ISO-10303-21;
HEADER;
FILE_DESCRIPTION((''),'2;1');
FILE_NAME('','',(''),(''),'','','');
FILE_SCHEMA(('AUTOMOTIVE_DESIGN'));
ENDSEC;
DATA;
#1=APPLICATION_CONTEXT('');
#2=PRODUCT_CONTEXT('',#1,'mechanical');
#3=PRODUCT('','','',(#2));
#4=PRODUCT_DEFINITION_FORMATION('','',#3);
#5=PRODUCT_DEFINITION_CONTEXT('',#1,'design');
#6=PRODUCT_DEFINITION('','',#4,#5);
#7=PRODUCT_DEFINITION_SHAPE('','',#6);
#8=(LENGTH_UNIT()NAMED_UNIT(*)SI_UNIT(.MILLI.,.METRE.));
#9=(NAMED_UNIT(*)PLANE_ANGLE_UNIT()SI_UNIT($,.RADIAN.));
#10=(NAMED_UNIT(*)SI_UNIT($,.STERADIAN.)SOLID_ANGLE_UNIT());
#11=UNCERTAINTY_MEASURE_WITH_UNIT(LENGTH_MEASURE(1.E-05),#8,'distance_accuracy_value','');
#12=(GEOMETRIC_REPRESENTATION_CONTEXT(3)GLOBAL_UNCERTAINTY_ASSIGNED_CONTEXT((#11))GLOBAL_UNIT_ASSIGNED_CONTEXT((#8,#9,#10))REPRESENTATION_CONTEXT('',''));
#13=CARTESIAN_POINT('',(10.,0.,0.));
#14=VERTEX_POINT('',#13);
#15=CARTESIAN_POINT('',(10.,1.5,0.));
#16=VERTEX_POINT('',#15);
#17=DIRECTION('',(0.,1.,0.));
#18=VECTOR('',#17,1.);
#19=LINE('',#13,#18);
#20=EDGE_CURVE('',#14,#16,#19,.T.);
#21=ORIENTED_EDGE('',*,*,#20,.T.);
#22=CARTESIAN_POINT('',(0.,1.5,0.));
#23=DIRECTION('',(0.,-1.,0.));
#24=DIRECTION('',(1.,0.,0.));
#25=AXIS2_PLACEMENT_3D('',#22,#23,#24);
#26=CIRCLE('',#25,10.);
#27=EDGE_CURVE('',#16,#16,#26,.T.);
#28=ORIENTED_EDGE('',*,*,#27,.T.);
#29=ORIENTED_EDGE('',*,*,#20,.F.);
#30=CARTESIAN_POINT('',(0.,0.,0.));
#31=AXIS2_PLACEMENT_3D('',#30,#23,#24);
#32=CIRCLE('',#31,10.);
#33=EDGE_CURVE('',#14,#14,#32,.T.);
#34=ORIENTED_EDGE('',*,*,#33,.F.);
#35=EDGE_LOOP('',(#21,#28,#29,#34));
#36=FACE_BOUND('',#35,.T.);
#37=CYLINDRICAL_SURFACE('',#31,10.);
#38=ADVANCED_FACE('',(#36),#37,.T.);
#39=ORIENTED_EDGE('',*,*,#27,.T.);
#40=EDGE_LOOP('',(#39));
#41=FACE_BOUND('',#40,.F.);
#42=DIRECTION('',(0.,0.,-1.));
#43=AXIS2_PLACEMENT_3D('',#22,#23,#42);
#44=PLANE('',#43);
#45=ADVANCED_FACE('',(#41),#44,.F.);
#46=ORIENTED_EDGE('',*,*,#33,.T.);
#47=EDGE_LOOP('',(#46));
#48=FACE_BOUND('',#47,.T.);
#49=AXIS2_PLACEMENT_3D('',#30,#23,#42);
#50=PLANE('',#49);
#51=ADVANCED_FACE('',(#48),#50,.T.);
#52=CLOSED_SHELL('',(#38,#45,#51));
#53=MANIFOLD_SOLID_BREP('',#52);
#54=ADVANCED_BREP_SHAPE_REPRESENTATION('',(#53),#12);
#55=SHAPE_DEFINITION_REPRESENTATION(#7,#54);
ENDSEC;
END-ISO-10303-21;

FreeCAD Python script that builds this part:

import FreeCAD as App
import Part
import Sketcher
from FreeCAD import Vector
Q = App.Units.Quantity

doc = App.newDocument("Part")
params = doc.addObject("Spreadsheet::Sheet", "Params")
for row, (alias, value) in enumerate([
    ("sketch1_diameter", "20 mm"),
    ("pad1_length", "1.5 mm"),
], start=1):
    params.set(f"A{row}", alias)
    params.set(f"B{row}", "=" + value)
    params.setAlias(f"B{row}", alias)

body = doc.addObject("PartDesign::Body", "Body")

sketch1 = doc.addObject("Sketcher::SketchObject", "Sketch")
body.addObject(sketch1)
sketch1.AttachmentSupport = (doc.XZ_Plane, [""])
sketch1.MapMode = "FlatFace"
sketch1.addGeometry(Part.Circle(Vector(0, 0, 0), Vector(0, 0, 1), 10), False)
sketch1.addConstraint([
    Sketcher.Constraint("Coincident", 0, 3, -1, 1),
    Sketcher.Constraint("Diameter", 0, Q("20 mm")),
])
sketch1.setExpression("Constraints[1]", "Params.sketch1_diameter")
pad1 = doc.addObject("PartDesign::Pad", "Pad")
body.addObject(pad1)
pad1.Profile = sketch1
pad1.setExpression("Length", "Params.pad1_length")
pad1.Reversed = True

doc.recompute()
